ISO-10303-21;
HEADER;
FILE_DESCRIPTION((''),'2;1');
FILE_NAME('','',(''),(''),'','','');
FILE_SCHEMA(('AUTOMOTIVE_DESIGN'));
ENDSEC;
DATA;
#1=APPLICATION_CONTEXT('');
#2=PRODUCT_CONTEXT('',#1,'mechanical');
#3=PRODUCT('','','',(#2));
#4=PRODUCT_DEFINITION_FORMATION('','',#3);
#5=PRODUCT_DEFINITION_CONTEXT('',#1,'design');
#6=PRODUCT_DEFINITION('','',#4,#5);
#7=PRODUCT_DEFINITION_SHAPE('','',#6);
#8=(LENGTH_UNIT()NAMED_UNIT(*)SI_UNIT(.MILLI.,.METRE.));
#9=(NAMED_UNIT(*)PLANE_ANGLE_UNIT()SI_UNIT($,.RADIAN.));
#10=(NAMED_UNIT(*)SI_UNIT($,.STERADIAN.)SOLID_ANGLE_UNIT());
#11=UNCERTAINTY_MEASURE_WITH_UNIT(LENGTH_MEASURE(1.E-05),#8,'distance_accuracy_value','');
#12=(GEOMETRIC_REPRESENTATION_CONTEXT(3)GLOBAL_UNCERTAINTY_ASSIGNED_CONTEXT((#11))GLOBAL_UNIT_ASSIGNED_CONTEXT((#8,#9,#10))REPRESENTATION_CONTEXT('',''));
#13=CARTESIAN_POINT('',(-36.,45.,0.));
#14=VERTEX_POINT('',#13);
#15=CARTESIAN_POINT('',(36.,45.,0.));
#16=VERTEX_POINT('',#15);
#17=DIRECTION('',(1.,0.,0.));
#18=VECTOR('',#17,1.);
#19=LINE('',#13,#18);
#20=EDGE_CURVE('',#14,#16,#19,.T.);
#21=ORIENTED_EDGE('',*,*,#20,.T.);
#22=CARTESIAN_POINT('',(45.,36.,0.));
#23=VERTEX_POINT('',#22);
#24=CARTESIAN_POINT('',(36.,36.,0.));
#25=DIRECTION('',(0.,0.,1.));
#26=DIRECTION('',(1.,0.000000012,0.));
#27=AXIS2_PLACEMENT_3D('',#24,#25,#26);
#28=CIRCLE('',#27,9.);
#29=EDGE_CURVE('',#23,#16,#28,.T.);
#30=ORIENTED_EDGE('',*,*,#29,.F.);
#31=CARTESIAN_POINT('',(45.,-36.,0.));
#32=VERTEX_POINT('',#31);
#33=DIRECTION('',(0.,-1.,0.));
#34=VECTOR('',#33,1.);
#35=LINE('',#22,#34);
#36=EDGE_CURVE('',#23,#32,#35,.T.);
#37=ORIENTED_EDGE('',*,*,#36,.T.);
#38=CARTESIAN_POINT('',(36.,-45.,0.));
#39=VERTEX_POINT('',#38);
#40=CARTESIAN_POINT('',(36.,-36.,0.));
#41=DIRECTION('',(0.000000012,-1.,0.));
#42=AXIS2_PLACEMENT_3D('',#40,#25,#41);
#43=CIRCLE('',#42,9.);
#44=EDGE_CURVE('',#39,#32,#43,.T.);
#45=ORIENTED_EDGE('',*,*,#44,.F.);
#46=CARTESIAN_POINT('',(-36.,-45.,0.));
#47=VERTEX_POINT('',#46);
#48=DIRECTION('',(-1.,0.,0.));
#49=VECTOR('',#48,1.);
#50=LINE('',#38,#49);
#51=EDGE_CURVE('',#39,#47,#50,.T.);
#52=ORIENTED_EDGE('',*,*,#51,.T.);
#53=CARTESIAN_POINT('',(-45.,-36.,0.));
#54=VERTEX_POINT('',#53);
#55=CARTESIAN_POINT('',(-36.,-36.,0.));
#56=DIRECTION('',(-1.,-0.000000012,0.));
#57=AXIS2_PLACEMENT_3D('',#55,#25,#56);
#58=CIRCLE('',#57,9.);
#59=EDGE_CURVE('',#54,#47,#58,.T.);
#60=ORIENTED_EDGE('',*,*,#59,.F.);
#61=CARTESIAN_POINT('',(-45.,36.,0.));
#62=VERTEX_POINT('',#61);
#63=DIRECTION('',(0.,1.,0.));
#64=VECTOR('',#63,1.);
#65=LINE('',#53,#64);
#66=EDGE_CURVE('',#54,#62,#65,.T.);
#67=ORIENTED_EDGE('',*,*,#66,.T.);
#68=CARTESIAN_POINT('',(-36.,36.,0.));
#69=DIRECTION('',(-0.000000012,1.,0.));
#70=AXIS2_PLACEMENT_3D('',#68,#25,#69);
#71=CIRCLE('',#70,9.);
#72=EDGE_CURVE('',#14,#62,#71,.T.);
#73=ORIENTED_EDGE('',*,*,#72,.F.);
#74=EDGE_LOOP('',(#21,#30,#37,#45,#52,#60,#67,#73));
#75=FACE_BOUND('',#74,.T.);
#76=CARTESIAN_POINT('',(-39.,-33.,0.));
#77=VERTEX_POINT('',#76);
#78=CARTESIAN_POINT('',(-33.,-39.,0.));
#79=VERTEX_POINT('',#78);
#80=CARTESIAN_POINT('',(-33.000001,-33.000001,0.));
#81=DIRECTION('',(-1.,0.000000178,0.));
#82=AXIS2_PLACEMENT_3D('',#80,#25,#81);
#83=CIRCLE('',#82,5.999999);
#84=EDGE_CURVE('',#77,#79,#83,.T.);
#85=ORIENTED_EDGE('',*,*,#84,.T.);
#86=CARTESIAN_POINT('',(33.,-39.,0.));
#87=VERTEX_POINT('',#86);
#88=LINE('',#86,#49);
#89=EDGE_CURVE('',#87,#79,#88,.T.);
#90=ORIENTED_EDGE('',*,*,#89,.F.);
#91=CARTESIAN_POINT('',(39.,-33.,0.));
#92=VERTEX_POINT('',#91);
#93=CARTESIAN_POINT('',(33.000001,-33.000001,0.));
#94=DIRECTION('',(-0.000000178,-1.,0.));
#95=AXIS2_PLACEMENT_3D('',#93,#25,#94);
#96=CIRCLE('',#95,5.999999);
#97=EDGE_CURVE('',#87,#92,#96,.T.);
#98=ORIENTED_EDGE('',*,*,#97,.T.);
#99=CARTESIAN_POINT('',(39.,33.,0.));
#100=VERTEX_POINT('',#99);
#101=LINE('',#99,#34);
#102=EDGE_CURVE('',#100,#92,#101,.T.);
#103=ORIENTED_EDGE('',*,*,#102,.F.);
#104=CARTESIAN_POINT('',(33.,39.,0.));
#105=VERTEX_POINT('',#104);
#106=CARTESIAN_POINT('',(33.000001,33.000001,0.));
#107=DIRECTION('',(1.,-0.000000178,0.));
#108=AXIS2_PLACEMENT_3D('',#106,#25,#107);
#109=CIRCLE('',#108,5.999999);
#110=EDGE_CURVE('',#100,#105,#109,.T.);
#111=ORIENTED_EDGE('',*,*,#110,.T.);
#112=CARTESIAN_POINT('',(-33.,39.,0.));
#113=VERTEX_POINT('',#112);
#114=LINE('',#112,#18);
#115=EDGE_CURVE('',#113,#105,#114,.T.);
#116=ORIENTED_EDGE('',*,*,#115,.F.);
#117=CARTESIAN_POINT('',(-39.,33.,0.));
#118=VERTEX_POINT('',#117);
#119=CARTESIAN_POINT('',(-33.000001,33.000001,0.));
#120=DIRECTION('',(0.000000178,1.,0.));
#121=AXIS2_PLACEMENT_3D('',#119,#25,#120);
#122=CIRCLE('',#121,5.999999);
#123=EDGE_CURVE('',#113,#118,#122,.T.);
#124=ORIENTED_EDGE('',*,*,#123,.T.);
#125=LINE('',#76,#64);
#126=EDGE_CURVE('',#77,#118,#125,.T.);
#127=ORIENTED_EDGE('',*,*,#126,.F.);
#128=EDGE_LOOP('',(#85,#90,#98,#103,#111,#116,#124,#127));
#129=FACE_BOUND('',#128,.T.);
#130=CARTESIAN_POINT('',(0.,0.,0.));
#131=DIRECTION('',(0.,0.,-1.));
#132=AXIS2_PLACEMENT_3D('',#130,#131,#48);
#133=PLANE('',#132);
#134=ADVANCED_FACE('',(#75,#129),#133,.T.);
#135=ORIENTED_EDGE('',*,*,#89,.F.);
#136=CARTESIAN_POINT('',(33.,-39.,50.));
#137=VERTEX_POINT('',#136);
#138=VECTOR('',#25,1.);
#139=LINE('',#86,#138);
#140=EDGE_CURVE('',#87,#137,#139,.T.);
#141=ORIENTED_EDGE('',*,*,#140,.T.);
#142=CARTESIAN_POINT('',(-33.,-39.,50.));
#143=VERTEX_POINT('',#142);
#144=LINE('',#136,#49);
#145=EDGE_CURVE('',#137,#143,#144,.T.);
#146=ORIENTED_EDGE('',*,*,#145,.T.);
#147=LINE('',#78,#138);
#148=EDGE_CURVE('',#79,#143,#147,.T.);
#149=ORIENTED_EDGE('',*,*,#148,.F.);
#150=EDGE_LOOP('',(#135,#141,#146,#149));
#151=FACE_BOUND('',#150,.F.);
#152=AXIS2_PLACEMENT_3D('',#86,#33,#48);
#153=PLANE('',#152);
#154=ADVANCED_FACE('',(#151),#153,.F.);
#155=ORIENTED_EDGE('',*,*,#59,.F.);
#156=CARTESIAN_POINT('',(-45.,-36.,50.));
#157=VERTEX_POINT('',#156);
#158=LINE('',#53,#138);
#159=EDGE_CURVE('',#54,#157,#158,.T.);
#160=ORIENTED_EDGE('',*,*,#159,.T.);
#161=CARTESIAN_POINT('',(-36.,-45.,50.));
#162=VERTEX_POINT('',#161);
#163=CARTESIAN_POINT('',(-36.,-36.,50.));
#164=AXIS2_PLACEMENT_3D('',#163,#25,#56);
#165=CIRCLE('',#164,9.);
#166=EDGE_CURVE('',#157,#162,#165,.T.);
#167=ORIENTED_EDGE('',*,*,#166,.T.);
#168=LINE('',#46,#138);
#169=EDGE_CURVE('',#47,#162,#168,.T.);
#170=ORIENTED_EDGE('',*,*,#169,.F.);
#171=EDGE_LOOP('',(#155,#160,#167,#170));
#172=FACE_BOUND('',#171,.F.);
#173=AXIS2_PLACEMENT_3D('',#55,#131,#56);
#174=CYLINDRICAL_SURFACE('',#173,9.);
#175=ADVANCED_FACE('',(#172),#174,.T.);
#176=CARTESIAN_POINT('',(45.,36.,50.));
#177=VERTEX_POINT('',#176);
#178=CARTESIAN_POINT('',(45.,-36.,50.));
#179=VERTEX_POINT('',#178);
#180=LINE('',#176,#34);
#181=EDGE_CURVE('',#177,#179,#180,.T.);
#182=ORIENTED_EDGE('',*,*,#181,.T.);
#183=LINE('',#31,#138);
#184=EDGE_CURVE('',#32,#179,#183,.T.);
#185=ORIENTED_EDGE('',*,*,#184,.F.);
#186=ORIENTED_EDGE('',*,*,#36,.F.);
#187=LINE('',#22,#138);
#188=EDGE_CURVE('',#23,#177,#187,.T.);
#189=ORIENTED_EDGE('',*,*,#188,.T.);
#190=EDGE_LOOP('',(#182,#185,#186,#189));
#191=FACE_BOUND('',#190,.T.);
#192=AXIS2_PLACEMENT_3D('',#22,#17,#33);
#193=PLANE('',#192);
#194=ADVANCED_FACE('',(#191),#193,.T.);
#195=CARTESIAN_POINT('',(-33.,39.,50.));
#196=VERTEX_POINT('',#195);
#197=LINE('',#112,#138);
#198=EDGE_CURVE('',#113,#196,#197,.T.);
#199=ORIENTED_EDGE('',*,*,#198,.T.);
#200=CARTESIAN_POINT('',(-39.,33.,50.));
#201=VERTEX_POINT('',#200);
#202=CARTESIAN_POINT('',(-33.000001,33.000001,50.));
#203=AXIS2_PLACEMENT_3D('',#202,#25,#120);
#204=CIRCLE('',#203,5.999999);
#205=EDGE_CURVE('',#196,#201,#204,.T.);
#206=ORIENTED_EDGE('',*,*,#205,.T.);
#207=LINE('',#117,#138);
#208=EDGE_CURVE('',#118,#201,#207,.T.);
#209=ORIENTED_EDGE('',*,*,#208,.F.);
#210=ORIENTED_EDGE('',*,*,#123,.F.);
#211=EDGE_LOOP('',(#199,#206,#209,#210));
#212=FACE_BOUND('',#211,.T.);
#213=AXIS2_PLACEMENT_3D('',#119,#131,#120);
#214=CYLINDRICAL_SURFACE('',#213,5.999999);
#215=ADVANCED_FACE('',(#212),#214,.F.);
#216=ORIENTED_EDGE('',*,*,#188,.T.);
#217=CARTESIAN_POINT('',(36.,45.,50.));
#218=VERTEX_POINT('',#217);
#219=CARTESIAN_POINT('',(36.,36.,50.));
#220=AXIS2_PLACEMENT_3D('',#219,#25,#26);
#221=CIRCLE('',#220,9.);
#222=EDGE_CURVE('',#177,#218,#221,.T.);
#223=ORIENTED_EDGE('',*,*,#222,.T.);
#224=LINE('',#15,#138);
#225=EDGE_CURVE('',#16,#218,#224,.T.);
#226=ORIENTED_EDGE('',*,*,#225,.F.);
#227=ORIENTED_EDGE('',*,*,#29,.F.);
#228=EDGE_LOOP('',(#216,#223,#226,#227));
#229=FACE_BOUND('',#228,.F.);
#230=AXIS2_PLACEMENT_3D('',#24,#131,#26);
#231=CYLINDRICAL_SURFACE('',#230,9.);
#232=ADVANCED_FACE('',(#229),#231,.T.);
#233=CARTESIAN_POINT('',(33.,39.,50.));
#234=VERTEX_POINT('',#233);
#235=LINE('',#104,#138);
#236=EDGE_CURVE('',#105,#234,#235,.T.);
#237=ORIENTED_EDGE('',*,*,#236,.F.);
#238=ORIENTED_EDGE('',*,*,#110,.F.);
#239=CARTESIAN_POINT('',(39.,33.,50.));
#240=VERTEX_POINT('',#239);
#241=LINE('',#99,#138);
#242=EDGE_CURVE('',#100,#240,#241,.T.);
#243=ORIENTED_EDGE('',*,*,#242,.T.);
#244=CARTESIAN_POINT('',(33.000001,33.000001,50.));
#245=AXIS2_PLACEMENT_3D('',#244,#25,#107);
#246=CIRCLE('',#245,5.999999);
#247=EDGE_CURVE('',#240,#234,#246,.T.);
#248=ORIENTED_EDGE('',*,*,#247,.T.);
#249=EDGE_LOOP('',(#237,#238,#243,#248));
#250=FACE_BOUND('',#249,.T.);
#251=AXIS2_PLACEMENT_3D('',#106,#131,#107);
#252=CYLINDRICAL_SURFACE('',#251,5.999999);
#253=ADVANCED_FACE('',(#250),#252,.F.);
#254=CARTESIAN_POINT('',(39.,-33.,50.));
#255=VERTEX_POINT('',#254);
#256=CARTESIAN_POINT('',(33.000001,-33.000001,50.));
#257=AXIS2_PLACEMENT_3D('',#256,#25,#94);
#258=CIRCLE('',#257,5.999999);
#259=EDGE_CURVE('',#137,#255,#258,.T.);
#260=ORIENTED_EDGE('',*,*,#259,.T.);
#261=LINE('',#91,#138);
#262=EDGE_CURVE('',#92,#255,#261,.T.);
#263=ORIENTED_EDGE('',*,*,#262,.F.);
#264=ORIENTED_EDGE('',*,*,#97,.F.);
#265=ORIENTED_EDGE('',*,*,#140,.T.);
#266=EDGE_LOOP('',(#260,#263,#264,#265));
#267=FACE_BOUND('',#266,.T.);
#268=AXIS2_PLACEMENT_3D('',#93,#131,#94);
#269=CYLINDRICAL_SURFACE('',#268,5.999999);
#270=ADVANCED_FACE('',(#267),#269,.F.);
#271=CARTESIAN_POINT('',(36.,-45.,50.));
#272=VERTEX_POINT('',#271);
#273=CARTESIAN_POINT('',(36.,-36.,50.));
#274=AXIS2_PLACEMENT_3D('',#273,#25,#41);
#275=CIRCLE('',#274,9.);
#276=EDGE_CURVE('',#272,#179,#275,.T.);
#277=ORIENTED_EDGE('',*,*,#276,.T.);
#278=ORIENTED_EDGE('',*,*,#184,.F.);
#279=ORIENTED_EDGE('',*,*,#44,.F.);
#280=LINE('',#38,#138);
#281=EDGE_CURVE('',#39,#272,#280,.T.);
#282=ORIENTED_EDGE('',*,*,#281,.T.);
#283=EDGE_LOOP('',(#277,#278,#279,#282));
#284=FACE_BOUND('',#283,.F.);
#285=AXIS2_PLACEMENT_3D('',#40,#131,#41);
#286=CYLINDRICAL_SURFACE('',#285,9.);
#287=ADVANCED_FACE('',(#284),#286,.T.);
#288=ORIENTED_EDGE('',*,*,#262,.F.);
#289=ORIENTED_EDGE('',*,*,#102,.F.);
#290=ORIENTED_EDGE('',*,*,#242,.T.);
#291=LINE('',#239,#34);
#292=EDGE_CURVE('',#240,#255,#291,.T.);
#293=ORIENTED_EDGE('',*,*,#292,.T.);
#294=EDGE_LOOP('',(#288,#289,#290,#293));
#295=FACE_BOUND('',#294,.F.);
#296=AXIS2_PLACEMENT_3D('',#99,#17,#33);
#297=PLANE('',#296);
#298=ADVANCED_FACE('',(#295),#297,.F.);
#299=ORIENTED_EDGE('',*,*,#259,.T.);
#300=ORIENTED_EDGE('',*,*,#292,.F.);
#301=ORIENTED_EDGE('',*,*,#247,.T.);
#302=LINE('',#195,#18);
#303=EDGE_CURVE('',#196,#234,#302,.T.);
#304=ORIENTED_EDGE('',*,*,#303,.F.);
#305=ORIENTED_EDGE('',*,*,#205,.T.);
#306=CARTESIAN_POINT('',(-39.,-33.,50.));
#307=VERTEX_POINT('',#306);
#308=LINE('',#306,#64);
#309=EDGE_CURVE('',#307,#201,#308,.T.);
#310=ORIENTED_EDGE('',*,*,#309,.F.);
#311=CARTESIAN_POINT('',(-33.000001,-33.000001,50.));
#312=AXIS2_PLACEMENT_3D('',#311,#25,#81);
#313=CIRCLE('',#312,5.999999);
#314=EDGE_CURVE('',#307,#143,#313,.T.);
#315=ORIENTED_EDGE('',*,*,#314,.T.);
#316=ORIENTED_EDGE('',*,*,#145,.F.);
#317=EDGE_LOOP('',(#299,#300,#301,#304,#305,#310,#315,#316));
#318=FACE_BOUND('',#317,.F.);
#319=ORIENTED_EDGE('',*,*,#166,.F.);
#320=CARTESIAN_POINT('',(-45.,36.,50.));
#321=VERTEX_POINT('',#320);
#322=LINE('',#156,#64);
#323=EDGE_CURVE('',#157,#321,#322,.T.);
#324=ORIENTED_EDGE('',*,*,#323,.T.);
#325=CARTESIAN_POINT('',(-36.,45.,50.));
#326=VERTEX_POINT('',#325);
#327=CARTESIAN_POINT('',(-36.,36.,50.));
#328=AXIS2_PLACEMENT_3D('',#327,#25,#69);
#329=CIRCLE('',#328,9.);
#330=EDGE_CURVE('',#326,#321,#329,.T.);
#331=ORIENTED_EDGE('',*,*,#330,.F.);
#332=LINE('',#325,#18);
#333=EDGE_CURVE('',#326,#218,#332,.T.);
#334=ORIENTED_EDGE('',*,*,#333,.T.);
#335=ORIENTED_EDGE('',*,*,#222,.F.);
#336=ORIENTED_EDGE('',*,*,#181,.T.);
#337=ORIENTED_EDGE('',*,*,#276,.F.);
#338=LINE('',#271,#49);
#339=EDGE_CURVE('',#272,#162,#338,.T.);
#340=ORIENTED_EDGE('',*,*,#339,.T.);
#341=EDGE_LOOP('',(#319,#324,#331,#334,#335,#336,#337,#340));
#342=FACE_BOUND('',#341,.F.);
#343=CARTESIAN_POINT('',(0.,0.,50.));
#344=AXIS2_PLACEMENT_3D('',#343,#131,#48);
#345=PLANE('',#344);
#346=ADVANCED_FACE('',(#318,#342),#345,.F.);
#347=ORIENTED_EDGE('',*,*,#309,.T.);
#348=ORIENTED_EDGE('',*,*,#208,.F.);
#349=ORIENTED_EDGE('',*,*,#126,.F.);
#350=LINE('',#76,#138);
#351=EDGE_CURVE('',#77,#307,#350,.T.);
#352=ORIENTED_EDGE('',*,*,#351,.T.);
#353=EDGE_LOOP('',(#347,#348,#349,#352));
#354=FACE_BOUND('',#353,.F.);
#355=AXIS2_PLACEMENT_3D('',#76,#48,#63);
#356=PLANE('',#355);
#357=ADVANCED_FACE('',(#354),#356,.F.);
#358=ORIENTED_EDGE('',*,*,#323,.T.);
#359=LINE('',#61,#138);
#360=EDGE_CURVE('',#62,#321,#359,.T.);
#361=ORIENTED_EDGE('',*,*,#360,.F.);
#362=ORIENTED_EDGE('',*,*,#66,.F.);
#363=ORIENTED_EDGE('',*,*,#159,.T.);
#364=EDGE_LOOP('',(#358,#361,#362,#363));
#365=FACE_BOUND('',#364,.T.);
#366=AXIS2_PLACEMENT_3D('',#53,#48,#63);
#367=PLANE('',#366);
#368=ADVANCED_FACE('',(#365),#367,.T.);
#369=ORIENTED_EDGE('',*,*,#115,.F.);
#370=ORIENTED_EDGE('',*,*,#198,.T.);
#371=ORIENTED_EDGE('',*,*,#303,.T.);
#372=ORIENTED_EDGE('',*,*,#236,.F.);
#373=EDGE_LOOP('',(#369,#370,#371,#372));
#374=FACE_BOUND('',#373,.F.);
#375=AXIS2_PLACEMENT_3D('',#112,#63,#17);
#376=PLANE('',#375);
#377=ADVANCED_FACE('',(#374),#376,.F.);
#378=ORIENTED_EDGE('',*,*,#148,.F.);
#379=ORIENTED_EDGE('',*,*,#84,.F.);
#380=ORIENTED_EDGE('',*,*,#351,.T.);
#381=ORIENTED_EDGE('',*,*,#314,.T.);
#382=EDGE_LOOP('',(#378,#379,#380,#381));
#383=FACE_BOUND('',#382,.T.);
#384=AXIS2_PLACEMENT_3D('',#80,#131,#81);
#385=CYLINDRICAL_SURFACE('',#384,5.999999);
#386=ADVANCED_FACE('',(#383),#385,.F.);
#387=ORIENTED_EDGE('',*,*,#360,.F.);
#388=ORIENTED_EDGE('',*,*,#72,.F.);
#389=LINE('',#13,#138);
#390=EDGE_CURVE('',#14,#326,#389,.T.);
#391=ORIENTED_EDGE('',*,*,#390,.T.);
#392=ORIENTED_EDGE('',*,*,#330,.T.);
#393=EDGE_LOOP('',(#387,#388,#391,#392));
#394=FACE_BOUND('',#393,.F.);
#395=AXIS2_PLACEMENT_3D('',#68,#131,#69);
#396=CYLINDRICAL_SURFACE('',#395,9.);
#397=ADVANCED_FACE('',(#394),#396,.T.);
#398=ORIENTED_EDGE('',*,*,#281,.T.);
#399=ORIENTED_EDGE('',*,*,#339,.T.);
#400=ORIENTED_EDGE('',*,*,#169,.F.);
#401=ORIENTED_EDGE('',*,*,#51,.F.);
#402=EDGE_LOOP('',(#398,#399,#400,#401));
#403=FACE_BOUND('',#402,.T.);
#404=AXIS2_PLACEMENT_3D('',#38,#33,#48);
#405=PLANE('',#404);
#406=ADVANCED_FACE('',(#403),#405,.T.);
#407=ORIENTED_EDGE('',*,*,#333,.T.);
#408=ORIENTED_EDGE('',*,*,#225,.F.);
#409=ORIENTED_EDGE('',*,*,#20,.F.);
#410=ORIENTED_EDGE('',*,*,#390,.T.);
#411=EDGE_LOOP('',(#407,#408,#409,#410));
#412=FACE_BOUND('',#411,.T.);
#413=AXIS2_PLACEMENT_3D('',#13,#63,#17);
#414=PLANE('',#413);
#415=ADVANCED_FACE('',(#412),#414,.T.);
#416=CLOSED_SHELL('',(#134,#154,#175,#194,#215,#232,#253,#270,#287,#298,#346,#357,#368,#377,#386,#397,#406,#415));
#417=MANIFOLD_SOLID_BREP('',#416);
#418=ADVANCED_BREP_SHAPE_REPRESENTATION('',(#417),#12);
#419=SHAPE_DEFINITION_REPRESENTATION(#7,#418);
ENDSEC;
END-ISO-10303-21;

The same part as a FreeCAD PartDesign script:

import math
import FreeCAD as App
import Part
import Sketcher

doc = App.newDocument("Part")
params = doc.addObject("Spreadsheet::Sheet", "Params")
for row, (alias, value) in enumerate([
    ("sketch1_radius", "9 mm"),
    ("sketch1_radius2", "5.999999 mm"),
    ("sketch1_width", "72 mm"),
    ("sketch1_width2", "66 mm"),
    ("pad1_length", "50 mm"),
], start=1):
    params.set(f"A{row}", alias)
    params.set(f"B{row}", "=" + value)
    params.setAlias(f"B{row}", alias)

body = doc.addObject("PartDesign::Body", "Body")

# Sketch on XY plane
sketch1 = body.newObject("Sketcher::SketchObject", "Sketch")
sketch1.AttachmentSupport = (doc.getObject("XY_Plane"), [""])
sketch1.MapMode = "FlatFace"
sketch1.addGeometry(Part.LineSegment(App.Vector(36, 45, 0), App.Vector(-36, 45, 0)), False)
sketch1.addGeometry(Part.ArcOfCircle(Part.Circle(App.Vector(-36, 36, 0), App.Vector(0, 0, 1), 9), math.radians(90), math.radians(180)), False)
sketch1.addGeometry(Part.LineSegment(App.Vector(-45, 36, 0), App.Vector(-45, -36, 0)), False)
sketch1.addGeometry(Part.ArcOfCircle(Part.Circle(App.Vector(-36, -36, 0), App.Vector(0, 0, 1), 9), math.radians(-180), math.radians(-90)), False)
sketch1.addGeometry(Part.LineSegment(App.Vector(-36, -45, 0), App.Vector(36, -45, 0)), False)
sketch1.addGeometry(Part.ArcOfCircle(Part.Circle(App.Vector(36, -36, 0), App.Vector(0, 0, 1), 9), math.radians(-90), math.radians(0)), False)
sketch1.addGeometry(Part.LineSegment(App.Vector(45, -36, 0), App.Vector(45, 36, 0)), False)
sketch1.addGeometry(Part.ArcOfCircle(Part.Circle(App.Vector(36, 36, 0), App.Vector(0, 0, 1), 9), math.radians(0), math.radians(90)), False)
sketch1.addGeometry(Part.LineSegment(App.Vector(-33, 39, 0), App.Vector(33, 39, 0)), False)
sketch1.addGeometry(Part.ArcOfCircle(Part.Circle(App.Vector(33, 33, 0), App.Vector(0, 0, 1), 6), math.radians(0), math.radians(90)), False)
sketch1.addGeometry(Part.LineSegment(App.Vector(39, 33, 0), App.Vector(39, -33, 0)), False)
sketch1.addGeometry(Part.ArcOfCircle(Part.Circle(App.Vector(33, -33, 0), App.Vector(0, 0, 1), 6), math.radians(-90), math.radians(0)), False)
sketch1.addGeometry(Part.LineSegment(App.Vector(33, -39, 0), App.Vector(-33, -39, 0)), False)
sketch1.addGeometry(Part.ArcOfCircle(Part.Circle(App.Vector(-33, -33, 0), App.Vector(0, 0, 1), 6), math.radians(180), math.radians(270)), False)
sketch1.addGeometry(Part.LineSegment(App.Vector(-39, -33, 0), App.Vector(-39, 33, 0)), False)
sketch1.addGeometry(Part.ArcOfCircle(Part.Circle(App.Vector(-33, 33, 0), App.Vector(0, 0, 1), 6), math.radians(90), math.radians(180)), False)
sketch1.addConstraint(Sketcher.Constraint("Tangent", 0, 2, 1, 1))
sketch1.addConstraint(Sketcher.Constraint("Tangent", 1, 2, 2, 1))
sketch1.addConstraint(Sketcher.Constraint("Tangent", 2, 2, 3, 1))
sketch1.addConstraint(Sketcher.Constraint("Tangent", 3, 2, 4, 1))
sketch1.addConstraint(Sketcher.Constraint("Tangent", 4, 2, 5, 1))
sketch1.addConstraint(Sketcher.Constraint("Tangent", 5, 2, 6, 1))
sketch1.addConstraint(Sketcher.Constraint("Tangent", 6, 2, 7, 1))
sketch1.addConstraint(Sketcher.Constraint("Tangent", 7, 2, 0, 1))
sketch1.addConstraint(Sketcher.Constraint("Tangent", 8, 2, 9, 2))
sketch1.addConstraint(Sketcher.Constraint("Tangent", 9, 1, 10, 1))
sketch1.addConstraint(Sketcher.Constraint("Tangent", 10, 2, 11, 2))
sketch1.addConstraint(Sketcher.Constraint("Tangent", 11, 1, 12, 1))
sketch1.addConstraint(Sketcher.Constraint("Tangent", 12, 2, 13, 2))
sketch1.addConstraint(Sketcher.Constraint("Tangent", 13, 1, 14, 1))
sketch1.addConstraint(Sketcher.Constraint("Tangent", 14, 2, 15, 2))
sketch1.addConstraint(Sketcher.Constraint("Tangent", 15, 1, 8, 1))
sketch1.addConstraint(Sketcher.Constraint("Horizontal", 0))
sketch1.addConstraint(Sketcher.Constraint("Vertical", 2))
sketch1.addConstraint(Sketcher.Constraint("Horizontal", 4))
sketch1.addConstraint(Sketcher.Constraint("Vertical", 6))
sketch1.addConstraint(Sketcher.Constraint("Horizontal", 8))
sketch1.addConstraint(Sketcher.Constraint("Vertical", 10))
sketch1.addConstraint(Sketcher.Constraint("Horizontal", 12))
sketch1.addConstraint(Sketcher.Constraint("Vertical", 14))
sketch1.addConstraint(Sketcher.Constraint("Equal", 1, 3))
sketch1.addConstraint(Sketcher.Constraint("Equal", 3, 5))
sketch1.addConstraint(Sketcher.Constraint("Equal", 5, 7))
sketch1.addConstraint(Sketcher.Constraint("Equal", 9, 11))
sketch1.addConstraint(Sketcher.Constraint("Equal", 11, 13))
sketch1.addConstraint(Sketcher.Constraint("Equal", 13, 15))
sketch1.addConstraint(Sketcher.Constraint("Symmetric", 1, 3, 5, 3, -1, 1))
sketch1.addConstraint(Sketcher.Constraint("Symmetric", 9, 3, 13, 3, -1, 1))
sketch1.addConstraint(Sketcher.Constraint("Equal", 4, 2))
sketch1.addConstraint(Sketcher.Constraint("Equal", 12, 10))
sketch1.addConstraint(Sketcher.Constraint("Radius", 1, 9.0))
sketch1.addConstraint(Sketcher.Constraint("Radius", 9, 5.999999))
sketch1.addConstraint(Sketcher.Constraint("DistanceX", 0, 2, 0, 1, 72.0))
sketch1.addConstraint(Sketcher.Constraint("DistanceX", 8, 1, 8, 2, 66.0))
sketch1.setExpression("Constraints[34]", "Params.sketch1_radius")
sketch1.setExpression("Constraints[35]", "Params.sketch1_radius2")
sketch1.setExpression("Constraints[36]", "Params.sketch1_width")
sketch1.setExpression("Constraints[37]", "Params.sketch1_width2")
pad1 = body.newObject("PartDesign::Pad", "Pad")
pad1.Profile = sketch1
pad1.setExpression("Length", "Params.pad1_length")

doc.recompute()
